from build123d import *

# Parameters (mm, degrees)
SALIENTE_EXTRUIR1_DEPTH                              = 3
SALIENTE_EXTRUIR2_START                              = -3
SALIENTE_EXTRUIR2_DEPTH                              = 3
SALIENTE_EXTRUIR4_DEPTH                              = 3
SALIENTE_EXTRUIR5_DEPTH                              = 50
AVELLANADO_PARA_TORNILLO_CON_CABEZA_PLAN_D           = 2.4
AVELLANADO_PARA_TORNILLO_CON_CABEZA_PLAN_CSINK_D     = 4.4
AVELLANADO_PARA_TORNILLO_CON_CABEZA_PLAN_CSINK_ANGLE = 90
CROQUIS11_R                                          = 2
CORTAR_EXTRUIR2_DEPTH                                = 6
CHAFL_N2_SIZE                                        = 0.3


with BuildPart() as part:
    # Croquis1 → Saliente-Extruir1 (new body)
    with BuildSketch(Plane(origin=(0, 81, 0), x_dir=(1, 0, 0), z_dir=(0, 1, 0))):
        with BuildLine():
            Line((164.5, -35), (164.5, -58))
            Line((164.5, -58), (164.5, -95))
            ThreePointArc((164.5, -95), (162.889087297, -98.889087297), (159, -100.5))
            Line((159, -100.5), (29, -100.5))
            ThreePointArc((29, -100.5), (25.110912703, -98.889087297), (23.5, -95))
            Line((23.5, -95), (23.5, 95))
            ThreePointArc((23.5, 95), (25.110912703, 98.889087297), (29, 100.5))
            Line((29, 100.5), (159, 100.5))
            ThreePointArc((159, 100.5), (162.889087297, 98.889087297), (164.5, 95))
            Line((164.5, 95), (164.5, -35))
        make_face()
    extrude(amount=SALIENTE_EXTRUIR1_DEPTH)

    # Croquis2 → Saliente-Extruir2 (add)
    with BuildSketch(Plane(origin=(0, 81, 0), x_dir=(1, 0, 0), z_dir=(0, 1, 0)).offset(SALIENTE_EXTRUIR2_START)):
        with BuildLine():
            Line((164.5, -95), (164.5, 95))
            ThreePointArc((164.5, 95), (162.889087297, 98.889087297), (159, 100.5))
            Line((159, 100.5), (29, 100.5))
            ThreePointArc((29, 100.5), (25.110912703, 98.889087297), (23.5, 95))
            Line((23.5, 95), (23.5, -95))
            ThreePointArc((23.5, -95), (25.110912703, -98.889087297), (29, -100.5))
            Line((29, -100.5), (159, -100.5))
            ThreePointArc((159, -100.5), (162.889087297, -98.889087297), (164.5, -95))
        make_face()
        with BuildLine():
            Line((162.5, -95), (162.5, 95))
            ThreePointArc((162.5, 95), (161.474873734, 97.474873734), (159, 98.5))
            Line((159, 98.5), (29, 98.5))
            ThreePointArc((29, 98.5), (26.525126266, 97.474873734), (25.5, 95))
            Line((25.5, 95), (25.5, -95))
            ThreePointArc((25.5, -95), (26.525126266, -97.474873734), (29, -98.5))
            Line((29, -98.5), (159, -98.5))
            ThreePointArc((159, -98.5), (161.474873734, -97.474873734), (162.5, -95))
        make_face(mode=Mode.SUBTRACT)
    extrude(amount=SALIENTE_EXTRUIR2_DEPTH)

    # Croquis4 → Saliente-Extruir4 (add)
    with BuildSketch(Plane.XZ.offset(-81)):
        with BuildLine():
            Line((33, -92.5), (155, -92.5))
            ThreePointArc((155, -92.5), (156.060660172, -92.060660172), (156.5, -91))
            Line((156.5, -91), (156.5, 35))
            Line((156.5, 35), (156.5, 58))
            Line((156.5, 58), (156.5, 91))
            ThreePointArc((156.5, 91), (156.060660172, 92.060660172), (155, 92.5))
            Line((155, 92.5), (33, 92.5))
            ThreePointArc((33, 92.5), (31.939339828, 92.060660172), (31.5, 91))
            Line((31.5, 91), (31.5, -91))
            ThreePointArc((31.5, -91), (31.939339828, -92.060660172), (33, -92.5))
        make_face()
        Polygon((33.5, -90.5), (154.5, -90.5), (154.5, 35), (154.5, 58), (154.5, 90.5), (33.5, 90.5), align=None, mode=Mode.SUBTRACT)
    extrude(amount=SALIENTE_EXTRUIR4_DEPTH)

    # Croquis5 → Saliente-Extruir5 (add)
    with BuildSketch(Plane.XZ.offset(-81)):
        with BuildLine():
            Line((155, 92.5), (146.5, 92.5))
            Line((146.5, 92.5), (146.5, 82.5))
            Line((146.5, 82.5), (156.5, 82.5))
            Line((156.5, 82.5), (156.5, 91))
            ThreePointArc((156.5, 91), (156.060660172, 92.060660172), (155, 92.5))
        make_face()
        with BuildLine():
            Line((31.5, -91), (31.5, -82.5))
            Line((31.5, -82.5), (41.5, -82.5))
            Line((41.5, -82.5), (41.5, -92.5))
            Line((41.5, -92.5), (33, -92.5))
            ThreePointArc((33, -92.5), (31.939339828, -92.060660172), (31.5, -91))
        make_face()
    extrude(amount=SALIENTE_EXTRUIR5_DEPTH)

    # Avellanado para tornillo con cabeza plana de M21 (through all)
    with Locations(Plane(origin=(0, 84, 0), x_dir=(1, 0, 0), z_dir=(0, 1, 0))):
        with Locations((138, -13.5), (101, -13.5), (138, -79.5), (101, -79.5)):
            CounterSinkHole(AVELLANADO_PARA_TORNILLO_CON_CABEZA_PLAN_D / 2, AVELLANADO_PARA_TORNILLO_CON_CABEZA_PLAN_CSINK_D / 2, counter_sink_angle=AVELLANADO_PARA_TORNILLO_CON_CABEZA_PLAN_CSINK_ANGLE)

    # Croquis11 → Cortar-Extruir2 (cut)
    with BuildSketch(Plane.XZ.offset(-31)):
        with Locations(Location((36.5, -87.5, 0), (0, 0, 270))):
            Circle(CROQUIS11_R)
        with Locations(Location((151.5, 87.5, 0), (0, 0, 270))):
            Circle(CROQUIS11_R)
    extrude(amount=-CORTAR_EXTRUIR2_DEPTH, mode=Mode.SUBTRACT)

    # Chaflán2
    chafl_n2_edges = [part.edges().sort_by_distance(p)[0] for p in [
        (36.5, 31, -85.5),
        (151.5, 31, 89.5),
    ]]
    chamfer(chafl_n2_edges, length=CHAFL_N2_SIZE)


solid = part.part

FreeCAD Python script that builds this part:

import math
import FreeCAD as App
import Part
import Sketcher
from FreeCAD import Vector


def edges_at(feature, points):
    """Names of the edges that pass closest to the given points."""
    edges = feature.Shape.Edges
    near = lambda p: min(range(len(edges)), key=lambda i: edges[i].distToShape(Part.Vertex(*p))[0])
    return sorted({f"Edge{near(p) + 1}" for p in points})

doc = App.newDocument("Part")
params = doc.addObject("Spreadsheet::Sheet", "Params")
for row, (alias, value) in enumerate([
    ("sketch1_radius", "5.5 mm"),
    ("sketch1_width", "130 mm"),
    ("sketch1_height", "190 mm"),
    ("pad1_length", "3 mm"),
    ("sketch2_radius", "5.5 mm"),
    ("sketch2_radius2", "3.5 mm"),
    ("sketch2_width", "130 mm"),
    ("sketch2_height", "190 mm"),
    ("pad2_length", "3 mm"),
    ("sketch3_radius", "1.5 mm"),
    ("sketch3_width", "122 mm"),
    ("sketch3_width2", "121 mm"),
    ("sketch3_height", "182 mm"),
    ("sketch3_height2", "181 mm"),
    ("pad3_length", "3 mm"),
    ("sketch4_radius", "1.5 mm"),
    ("sketch4_width", "10 mm"),
    ("pad4_length", "50 mm"),
    ("sketch5_diameter", "2.4 mm"),
    ("hole_diameter", "2.4 mm"),
    ("hole_csink_diameter", "4.4 mm"),
    ("sketch6_diameter", "4 mm"),
    ("pocket1_length", "6 mm"),
    ("chamfer_size", "0.3 mm"),
], start=1):
    params.set(f"A{row}", alias)
    params.set(f"B{row}", "=" + value)
    params.setAlias(f"B{row}", alias)

body = doc.addObject("PartDesign::Body", "Body")

# Sketch on XZ plane
sketch1 = body.newObject("Sketcher::SketchObject", "Sketch")
sketch1.AttachmentSupport = (doc.getObject("XZ_Plane"), [""])
sketch1.MapMode = "FlatFace"
sketch1.AttachmentOffset = App.Placement(Vector(0, 0, -81), App.Rotation())
sketch1.addGeometry(Part.ArcOfCircle(Part.Circle(Vector(159, 95, 0), Vector(0, 0, 1), 5.5), math.radians(0), math.radians(90)), False)
sketch1.addGeometry(Part.LineSegment(Vector(164.5, 95, 0), Vector(164.5, -95, 0)), False)
sketch1.addGeometry(Part.ArcOfCircle(Part.Circle(Vector(159, -95, 0), Vector(0, 0, 1), 5.5), math.radians(-90), math.radians(0)), False)
sketch1.addGeometry(Part.LineSegment(Vector(159, -100.5, 0), Vector(29, -100.5, 0)), False)
sketch1.addGeometry(Part.ArcOfCircle(Part.Circle(Vector(29, -95, 0), Vector(0, 0, 1), 5.5), math.radians(180), math.radians(270)), False)
sketch1.addGeometry(Part.LineSegment(Vector(23.5, -95, 0), Vector(23.5, 95, 0)), False)
sketch1.addGeometry(Part.ArcOfCircle(Part.Circle(Vector(29, 95, 0), Vector(0, 0, 1), 5.5), math.radians(90), math.radians(180)), False)
sketch1.addGeometry(Part.LineSegment(Vector(29, 100.5, 0), Vector(159, 100.5, 0)), False)
sketch1.addConstraint(Sketcher.Constraint("Tangent", 0, 1, 1, 1))
sketch1.addConstraint(Sketcher.Constraint("Tangent", 1, 2, 2, 2))
sketch1.addConstraint(Sketcher.Constraint("Tangent", 2, 1, 3, 1))
sketch1.addConstraint(Sketcher.Constraint("Tangent", 3, 2, 4, 2))
sketch1.addConstraint(Sketcher.Constraint("Tangent", 4, 1, 5, 1))
sketch1.addConstraint(Sketcher.Constraint("Tangent", 5, 2, 6, 2))
sketch1.addConstraint(Sketcher.Constraint("Tangent", 6, 1, 7, 1))
sketch1.addConstraint(Sketcher.Constraint("Tangent", 7, 2, 0, 2))
sketch1.addConstraint(Sketcher.Constraint("Vertical", 1))
sketch1.addConstraint(Sketcher.Constraint("Horizontal", 3))
sketch1.addConstraint(Sketcher.Constraint("Vertical", 5))
sketch1.addConstraint(Sketcher.Constraint("Horizontal", 7))
sketch1.addConstraint(Sketcher.Constraint("Equal", 0, 2))
sketch1.addConstraint(Sketcher.Constraint("Equal", 2, 4))
sketch1.addConstraint(Sketcher.Constraint("Equal", 4, 6))
sketch1.addConstraint(Sketcher.Constraint("Radius", 0, 5.5))
sketch1.addConstraint(Sketcher.Constraint("DistanceX", 3, 2, 3, 1, 130.0))
sketch1.addConstraint(Sketcher.Constraint("DistanceY", 1, 2, 1, 1, 190.0))
sketch1.addConstraint(Sketcher.Constraint("DistanceX", -1, 1, 0, 3, 159.0))
sketch1.addConstraint(Sketcher.Constraint("DistanceY", -1, 1, 0, 3, 95.0))
sketch1.setExpression("Constraints[15]", "Params.sketch1_radius")
sketch1.setExpression("Constraints[16]", "Params.sketch1_width")
sketch1.setExpression("Constraints[17]", "Params.sketch1_height")
pad1 = body.newObject("PartDesign::Pad", "Pad")
pad1.Profile = sketch1
pad1.setExpression("Length", "Params.pad1_length")
pad1.Reversed = True

# Sketch on XZ plane
sketch2 = body.newObject("Sketcher::SketchObject", "Sketch001")
sketch2.AttachmentSupport = (doc.getObject("XZ_Plane"), [""])
sketch2.MapMode = "FlatFace"
sketch2.AttachmentOffset = App.Placement(Vector(0, 0, -78), App.Rotation())
sketch2.addGeometry(Part.LineSegment(Vector(164.5, 95, 0), Vector(164.5, -95, 0)), False)
sketch2.addGeometry(Part.ArcOfCircle(Part.Circle(Vector(159, -95, 0), Vector(0, 0, 1), 5.5), math.radians(-90), math.radians(0)), False)
sketch2.addGeometry(Part.LineSegment(Vector(159, -100.5, 0), Vector(29, -100.5, 0)), False)
sketch2.addGeometry(Part.ArcOfCircle(Part.Circle(Vector(29, -95, 0), Vector(0, 0, 1), 5.5), math.radians(180), math.radians(270)), False)
sketch2.addGeometry(Part.LineSegment(Vector(23.5, -95, 0), Vector(23.5, 95, 0)), False)
sketch2.addGeometry(Part.ArcOfCircle(Part.Circle(Vector(29, 95, 0), Vector(0, 0, 1), 5.5), math.radians(90), math.radians(180)), False)
sketch2.addGeometry(Part.LineSegment(Vector(29, 100.5, 0), Vector(159, 100.5, 0)), False)
sketch2.addGeometry(Part.ArcOfCircle(Part.Circle(Vector(159, 95, 0), Vector(0, 0, 1), 5.5), math.radians(0), math.radians(90)), False)
sketch2.addGeometry(Part.LineSegment(Vector(162.5, -95, 0), Vector(162.5, 95, 0)), False)
sketch2.addGeometry(Part.ArcOfCircle(Part.Circle(Vector(159, 95, 0), Vector(0, 0, 1), 3.5), math.radians(0), math.radians(90)), False)
sketch2.addGeometry(Part.LineSegment(Vector(159, 98.5, 0), Vector(29, 98.5, 0)), False)
sketch2.addGeometry(Part.ArcOfCircle(Part.Circle(Vector(29, 95, 0), Vector(0, 0, 1), 3.5), math.radians(90), math.radians(180)), False)
sketch2.addGeometry(Part.LineSegment(Vector(25.5, 95, 0), Vector(25.5, -95, 0)), False)
sketch2.addGeometry(Part.ArcOfCircle(Part.Circle(Vector(29, -95, 0), Vector(0, 0, 1), 3.5), math.radians(-180), math.radians(-90)), False)
sketch2.addGeometry(Part.LineSegment(Vector(29, -98.5, 0), Vector(159, -98.5, 0)), False)
sketch2.addGeometry(Part.ArcOfCircle(Part.Circle(Vector(159, -95, 0), Vector(0, 0, 1), 3.5), math.radians(-90), math.radians(0)), False)
sketch2.addConstraint(Sketcher.Constraint("Tangent", 0, 2, 1, 2))
sketch2.addConstraint(Sketcher.Constraint("Tangent", 1, 1, 2, 1))
sketch2.addConstraint(Sketcher.Constraint("Tangent", 2, 2, 3, 2))
sketch2.addConstraint(Sketcher.Constraint("Tangent", 3, 1, 4, 1))
sketch2.addConstraint(Sketcher.Constraint("Tangent", 4, 2, 5, 2))
sketch2.addConstraint(Sketcher.Constraint("Tangent", 5, 1, 6, 1))
sketch2.addConstraint(Sketcher.Constraint("Tangent", 6, 2, 7, 2))
sketch2.addConstraint(Sketcher.Constraint("Tangent", 7, 1, 0, 1))
sketch2.addConstraint(Sketcher.Constraint("Tangent", 8, 2, 9, 1))
sketch2.addConstraint(Sketcher.Constraint("Tangent", 9, 2, 10, 1))
sketch2.addConstraint(Sketcher.Constraint("Tangent", 10, 2, 11, 1))
sketch2.addConstraint(Sketcher.Constraint("Tangent", 11, 2, 12, 1))
sketch2.addConstraint(Sketcher.Constraint("Tangent", 12, 2, 13, 1))
sketch2.addConstraint(Sketcher.Constraint("Tangent", 13, 2, 14, 1))
sketch2.addConstraint(Sketcher.Constraint("Tangent", 14, 2, 15, 1))
sketch2.addConstraint(Sketcher.Constraint("Tangent", 15, 2, 8, 1))
sketch2.addConstraint(Sketcher.Constraint("Vertical", 0))
sketch2.addConstraint(Sketcher.Constraint("Horizontal", 2))
sketch2.addConstraint(Sketcher.Constraint("Vertical", 4))
sketch2.addConstraint(Sketcher.Constraint("Horizontal", 6))
sketch2.addConstraint(Sketcher.Constraint("Vertical", 8))
sketch2.addConstraint(Sketcher.Constraint("Horizontal", 10))
sketch2.addConstraint(Sketcher.Constraint("Vertical", 12))
sketch2.addConstraint(Sketcher.Constraint("Horizontal", 14))
sketch2.addConstraint(Sketcher.Constraint("Coincident", 9, 3, 7, 3))
sketch2.addConstraint(Sketcher.Constraint("Coincident", 11, 3, 5, 3))
sketch2.addConstraint(Sketcher.Constraint("Coincident", 13, 3, 3, 3))
sketch2.addConstraint(Sketcher.Constraint("Equal", 1, 3))
sketch2.addConstraint(Sketcher.Constraint("Equal", 3, 5))
sketch2.addConstraint(Sketcher.Constraint("Equal", 5, 7))
sketch2.addConstraint(Sketcher.Constraint("Equal", 13, 15))
sketch2.addConstraint(Sketcher.Constraint("Radius", 1, 5.5))
sketch2.addConstraint(Sketcher.Constraint("Radius", 9, 3.5))
sketch2.addConstraint(Sketcher.Constraint("DistanceX", 2, 2, 2, 1, 130.0))
sketch2.addConstraint(Sketcher.Constraint("DistanceY", 0, 2, 0, 1, 190.0))
sketch2.addConstraint(Sketcher.Constraint("DistanceX", -1, 1, 1, 3, 159.0))
sketch2.addConstraint(Sketcher.Constraint("DistanceY", 1, 3, -1, 1, 95.0))
sketch2.setExpression("Constraints[31]", "Params.sketch2_radius")
sketch2.setExpression("Constraints[32]", "Params.sketch2_radius2")
sketch2.setExpression("Constraints[33]", "Params.sketch2_width")
sketch2.setExpression("Constraints[34]", "Params.sketch2_height")
pad2 = body.newObject("PartDesign::Pad", "Pad001")
pad2.Profile = sketch2
pad2.setExpression("Length", "Params.pad2_length")
pad2.Reversed = True

# Sketch on XZ plane
sketch3 = body.newObject("Sketcher::SketchObject", "Sketch002")
sketch3.AttachmentSupport = (doc.getObject("XZ_Plane"), [""])
sketch3.MapMode = "FlatFace"
sketch3.AttachmentOffset = App.Placement(Vector(0, 0, -81), App.Rotation())
sketch3.addGeometry(Part.LineSegment(Vector(33, -92.5, 0), Vector(155, -92.5, 0)), False)
sketch3.addGeometry(Part.ArcOfCircle(Part.Circle(Vector(155, -91, 0), Vector(0, 0, 1), 1.5), math.radians(-90), math.radians(0)), False)
sketch3.addGeometry(Part.LineSegment(Vector(156.5, -91, 0), Vector(156.5, 91, 0)), False)
sketch3.addGeometry(Part.ArcOfCircle(Part.Circle(Vector(155, 91, 0), Vector(0, 0, 1), 1.5), math.radians(0), math.radians(90)), False)
sketch3.addGeometry(Part.LineSegment(Vector(155, 92.5, 0), Vector(33, 92.5, 0)), False)
sketch3.addGeometry(Part.ArcOfCircle(Part.Circle(Vector(33, 91, 0), Vector(0, 0, 1), 1.5), math.radians(90), math.radians(180)), False)
sketch3.addGeometry(Part.LineSegment(Vector(31.5, 91, 0), Vector(31.5, -91, 0)), False)
sketch3.addGeometry(Part.ArcOfCircle(Part.Circle(Vector(33, -91, 0), Vector(0, 0, 1), 1.5), math.radians(180), math.radians(270)), False)
sketch3.addGeometry(Part.LineSegment(Vector(154.5, -90.5, 0), Vector(33.5, -90.5, 0)), False)
sketch3.addGeometry(Part.LineSegment(Vector(33.5, -90.5, 0), Vector(33.5, 90.5, 0)), False)
sketch3.addGeometry(Part.LineSegment(Vector(33.5, 90.5, 0), Vector(154.5, 90.5, 0)), False)
sketch3.addGeometry(Part.LineSegment(Vector(154.5, 90.5, 0), Vector(154.5, -90.5, 0)), False)
sketch3.addConstraint(Sketcher.Constraint("Tangent", 0, 2, 1, 1))
sketch3.addConstraint(Sketcher.Constraint("Tangent", 1, 2, 2, 1))
sketch3.addConstraint(Sketcher.Constraint("Tangent", 2, 2, 3, 1))
sketch3.addConstraint(Sketcher.Constraint("Tangent", 3, 2, 4, 1))
sketch3.addConstraint(Sketcher.Constraint("Tangent", 4, 2, 5, 1))
sketch3.addConstraint(Sketcher.Constraint("Tangent", 5, 2, 6, 1))
sketch3.addConstraint(Sketcher.Constraint("Tangent", 6, 2, 7, 1))
sketch3.addConstraint(Sketcher.Constraint("Tangent", 7, 2, 0, 1))
sketch3.addConstraint(Sketcher.Constraint("Coincident", 8, 2, 9, 1))
sketch3.addConstraint(Sketcher.Constraint("Coincident", 9, 2, 10, 1))
sketch3.addConstraint(Sketcher.Constraint("Coincident", 10, 2, 11, 1))
sketch3.addConstraint(Sketcher.Constraint("Coincident", 11, 2, 8, 1))
sketch3.addConstraint(Sketcher.Constraint("Horizontal", 0))
sketch3.addConstraint(Sketcher.Constraint("Vertical", 2))
sketch3.addConstraint(Sketcher.Constraint("Horizontal", 4))
sketch3.addConstraint(Sketcher.Constraint("Vertical", 6))
sketch3.addConstraint(Sketcher.Constraint("Horizontal", 8))
sketch3.addConstraint(Sketcher.Constraint("Vertical", 9))
sketch3.addConstraint(Sketcher.Constraint("Horizontal", 10))
sketch3.addConstraint(Sketcher.Constraint("Vertical", 11))
sketch3.addConstraint(Sketcher.Constraint("Equal", 1, 3))
sketch3.addConstraint(Sketcher.Constraint("Equal", 3, 5))
sketch3.addConstraint(Sketcher.Constraint("Equal", 5, 7))
sketch3.addConstraint(Sketcher.Constraint("Radius", 1, 1.5))
sketch3.addConstraint(Sketcher.Constraint("DistanceX", 0, 1, 0, 2, 122.0))
sketch3.addConstraint(Sketcher.Constraint("DistanceX", 8, 2, 8, 1, 121.0))
sketch3.addConstraint(Sketcher.Constraint("DistanceY", 2, 1, 2, 2, 182.0))
sketch3.addConstraint(Sketcher.Constraint("DistanceY", 9, 1, 9, 2, 181.0))
sketch3.addConstraint(Sketcher.Constraint("DistanceX", -1, 1, 1, 3, 155.0))
sketch3.addConstraint(Sketcher.Constraint("DistanceY", 1, 3, -1, 1, 91.0))
sketch3.addConstraint(Sketcher.Constraint("DistanceX", 6, 2, 8, 2, 2.0))
sketch3.addConstraint(Sketcher.Constraint("DistanceY", 7, 2, 8, 2, 2.0))
sketch3.setExpression("Constraints[23]", "Params.sketch3_radius")
sketch3.setExpression("Constraints[24]", "Params.sketch3_width")
sketch3.setExpression("Constraints[25]", "Params.sketch3_width2")
sketch3.setExpression("Constraints[26]", "Params.sketch3_height")
sketch3.setExpression("Constraints[27]", "Params.sketch3_height2")
pad3 = body.newObject("PartDesign::Pad", "Pad002")
pad3.Profile = sketch3
pad3.setExpression("Length", "Params.pad3_length")

# Sketch on XZ plane
sketch4 = body.newObject("Sketcher::SketchObject", "Sketch003")
sketch4.AttachmentSupport = (doc.getObject("XZ_Plane"), [""])
sketch4.MapMode = "FlatFace"
sketch4.AttachmentOffset = App.Placement(Vector(0, 0, -81), App.Rotation())
sketch4.addGeometry(Part.LineSegment(Vector(155, 92.5, 0), Vector(146.5, 92.5, 0)), False)
sketch4.addGeometry(Part.LineSegment(Vector(146.5, 92.5, 0), Vector(146.5, 82.5, 0)), False)
sketch4.addGeometry(Part.LineSegment(Vector(146.5, 82.5, 0), Vector(156.5, 82.5, 0)), False)
sketch4.addGeometry(Part.LineSegment(Vector(156.5, 82.5, 0), Vector(156.5, 91, 0)), False)
sketch4.addGeometry(Part.ArcOfCircle(Part.Circle(Vector(155, 91, 0), Vector(0, 0, 1), 1.5), math.radians(0), math.radians(90)), False)
sketch4.addGeometry(Part.LineSegment(Vector(31.5, -82.5, 0), Vector(31.5, -91, 0)), False)
sketch4.addGeometry(Part.ArcOfCircle(Part.Circle(Vector(33, -91, 0), Vector(0, 0, 1), 1.5), math.radians(180), math.radians(270)), False)
sketch4.addGeometry(Part.LineSegment(Vector(33, -92.5, 0), Vector(41.5, -92.5, 0)), False)
sketch4.addGeometry(Part.LineSegment(Vector(41.5, -92.5, 0), Vector(41.5, -82.5, 0)), False)
sketch4.addGeometry(Part.LineSegment(Vector(41.5, -82.5, 0), Vector(31.5, -82.5, 0)), False)
sketch4.addConstraint(Sketcher.Constraint("Coincident", 0, 2, 1, 1))
sketch4.addConstraint(Sketcher.Constraint("Coincident", 1, 2, 2, 1))
sketch4.addConstraint(Sketcher.Constraint("Coincident", 2, 2, 3, 1))
sketch4.addConstraint(Sketcher.Constraint("Tangent", 3, 2, 4, 1))
sketch4.addConstraint(Sketcher.Constraint("Tangent", 4, 2, 0, 1))
sketch4.addConstraint(Sketcher.Constraint("Tangent", 5, 2, 6, 1))
sketch4.addConstraint(Sketcher.Constraint("Tangent", 6, 2, 7, 1))
sketch4.addConstraint(Sketcher.Constraint("Coincident", 7, 2, 8, 1))
sketch4.addConstraint(Sketcher.Constraint("Coincident", 8, 2, 9, 1))
sketch4.addConstraint(Sketcher.Constraint("Coincident", 9, 2, 5, 1))
sketch4.addConstraint(Sketcher.Constraint("Horizontal", 0))
sketch4.addConstraint(Sketcher.Constraint("Vertical", 1))
sketch4.addConstraint(Sketcher.Constraint("Horizontal", 2))
sketch4.addConstraint(Sketcher.Constraint("Vertical", 3))
sketch4.addConstraint(Sketcher.Constraint("Vertical", 5))
sketch4.addConstraint(Sketcher.Constraint("Horizontal", 7))
sketch4.addConstraint(Sketcher.Constraint("Vertical", 8))
sketch4.addConstraint(Sketcher.Constraint("Horizontal", 9))
sketch4.addConstraint(Sketcher.Constraint("Equal", 4, 6))
sketch4.addConstraint(Sketcher.Constraint("Equal", 0, 7))
sketch4.addConstraint(Sketcher.Constraint("Equal", 9, 1))
sketch4.addConstraint(Sketcher.Constraint("Equal", 3, 5))
sketch4.addConstraint(Sketcher.Constraint("Radius", 4, 1.5))
sketch4.addConstraint(Sketcher.Constraint("DistanceX", 2, 1, 2, 2, 10.0))
sketch4.addConstraint(Sketcher.Constraint("DistanceX", -1, 1, 4, 3, 155.0))
sketch4.addConstraint(Sketcher.Constraint("DistanceY", -1, 1, 4, 3, 91.0))
sketch4.addConstraint(Sketcher.Constraint("DistanceX", -1, 1, 6, 3, 33.0))
sketch4.addConstraint(Sketcher.Constraint("DistanceY", 6, 3, -1, 1, 91.0))
sketch4.setExpression("Constraints[22]", "Params.sketch4_radius")
sketch4.setExpression("Constraints[23]", "Params.sketch4_width")
pad4 = body.newObject("PartDesign::Pad", "Pad003")
pad4.Profile = sketch4
pad4.setExpression("Length", "Params.pad4_length")

# Sketch on XZ plane
sketch5 = body.newObject("Sketcher::SketchObject", "Sketch004")
sketch5.AttachmentSupport = (doc.getObject("XZ_Plane"), [""])
sketch5.MapMode = "FlatFace"
sketch5.AttachmentOffset = App.Placement(Vector(0, 0, -84), App.Rotation())
sketch5.addGeometry(Part.Circle(Vector(138, 13.5, 0), Vector(0, 0, 1), 1.2), False)
sketch5.addGeometry(Part.Circle(Vector(101, 13.5, 0), Vector(0, 0, 1), 1.2), False)
sketch5.addGeometry(Part.Circle(Vector(138, 79.5, 0), Vector(0, 0, 1), 1.2), False)
sketch5.addGeometry(Part.Circle(Vector(101, 79.5, 0), Vector(0, 0, 1), 1.2), False)
sketch5.addConstraint(Sketcher.Constraint("Equal", 0, 1))
sketch5.addConstraint(Sketcher.Constraint("Equal", 1, 2))
sketch5.addConstraint(Sketcher.Constraint("Equal", 2, 3))
sketch5.addConstraint(Sketcher.Constraint("Horizontal", 0, 3, 1, 3))
sketch5.addConstraint(Sketcher.Constraint("Horizontal", 2, 3, 3, 3))
sketch5.addConstraint(Sketcher.Constraint("Vertical", 0, 3, 2, 3))
sketch5.addConstraint(Sketcher.Constraint("Vertical", 1, 3, 3, 3))
sketch5.addConstraint(Sketcher.Constraint("Diameter", 0, 2.4))
sketch5.addConstraint(Sketcher.Constraint("DistanceX", -1, 1, 0, 3, 138.0))
sketch5.addConstraint(Sketcher.Constraint("DistanceX", -1, 1, 1, 3, 101.0))
sketch5.addConstraint(Sketcher.Constraint("DistanceY", 0, 3, 2, 3, 66.0))
sketch5.addConstraint(Sketcher.Constraint("DistanceY", -1, 1, 0, 3, 13.5))
sketch5.setExpression("Constraints[7]", "Params.sketch5_diameter")
doc.recompute()
hole = body.newObject("PartDesign::Hole", "Hole")
hole.Profile = sketch5
hole.ThreadType = "None"
hole.setExpression("Diameter", "Params.hole_diameter")
hole.DepthType = "ThroughAll"
hole.HoleCutType = "Countersink"
hole.setExpression("HoleCutDiameter", "Params.hole_csink_diameter")
hole.HoleCutCountersinkAngle = 90
hole.Reversed = True

# Sketch on XZ plane
sketch6 = body.newObject("Sketcher::SketchObject", "Sketch005")
sketch6.AttachmentSupport = (doc.getObject("XZ_Plane"), [""])
sketch6.MapMode = "FlatFace"
sketch6.AttachmentOffset = App.Placement(Vector(0, 0, -31), App.Rotation())
sketch6.addGeometry(Part.Circle(Vector(36.5, -87.5, 0), Vector(0, 0, 1), 2), False)
sketch6.addGeometry(Part.Circle(Vector(151.5, 87.5, 0), Vector(0, 0, 1), 2), False)
sketch6.addConstraint(Sketcher.Constraint("Equal", 0, 1))
sketch6.addConstraint(Sketcher.Constraint("Diameter", 0, 4.0))
sketch6.addConstraint(Sketcher.Constraint("DistanceX", 0, 3, 1, 3, 115.0))
sketch6.addConstraint(Sketcher.Constraint("DistanceY", 0, 3, 1, 3, 175.0))
sketch6.addConstraint(Sketcher.Constraint("DistanceX", -1, 1, 0, 3, 36.5))
sketch6.addConstraint(Sketcher.Constraint("DistanceY", 0, 3, -1, 1, 87.5))
sketch6.setExpression("Constraints[1]", "Params.sketch6_diameter")
pocket1 = body.newObject("PartDesign::Pocket", "Pocket")
pocket1.Profile = sketch6
pocket1.setExpression("Length", "Params.pocket1_length")
doc.recompute()

chamfer = body.newObject("PartDesign::Chamfer", "Chamfer")
chamfer.Base = (pocket1, edges_at(pocket1, [(36.5, 31, -85.5), (151.5, 31, 89.5)]))
chamfer.setExpression("Size", "Params.chamfer_size")

doc.recompute()
